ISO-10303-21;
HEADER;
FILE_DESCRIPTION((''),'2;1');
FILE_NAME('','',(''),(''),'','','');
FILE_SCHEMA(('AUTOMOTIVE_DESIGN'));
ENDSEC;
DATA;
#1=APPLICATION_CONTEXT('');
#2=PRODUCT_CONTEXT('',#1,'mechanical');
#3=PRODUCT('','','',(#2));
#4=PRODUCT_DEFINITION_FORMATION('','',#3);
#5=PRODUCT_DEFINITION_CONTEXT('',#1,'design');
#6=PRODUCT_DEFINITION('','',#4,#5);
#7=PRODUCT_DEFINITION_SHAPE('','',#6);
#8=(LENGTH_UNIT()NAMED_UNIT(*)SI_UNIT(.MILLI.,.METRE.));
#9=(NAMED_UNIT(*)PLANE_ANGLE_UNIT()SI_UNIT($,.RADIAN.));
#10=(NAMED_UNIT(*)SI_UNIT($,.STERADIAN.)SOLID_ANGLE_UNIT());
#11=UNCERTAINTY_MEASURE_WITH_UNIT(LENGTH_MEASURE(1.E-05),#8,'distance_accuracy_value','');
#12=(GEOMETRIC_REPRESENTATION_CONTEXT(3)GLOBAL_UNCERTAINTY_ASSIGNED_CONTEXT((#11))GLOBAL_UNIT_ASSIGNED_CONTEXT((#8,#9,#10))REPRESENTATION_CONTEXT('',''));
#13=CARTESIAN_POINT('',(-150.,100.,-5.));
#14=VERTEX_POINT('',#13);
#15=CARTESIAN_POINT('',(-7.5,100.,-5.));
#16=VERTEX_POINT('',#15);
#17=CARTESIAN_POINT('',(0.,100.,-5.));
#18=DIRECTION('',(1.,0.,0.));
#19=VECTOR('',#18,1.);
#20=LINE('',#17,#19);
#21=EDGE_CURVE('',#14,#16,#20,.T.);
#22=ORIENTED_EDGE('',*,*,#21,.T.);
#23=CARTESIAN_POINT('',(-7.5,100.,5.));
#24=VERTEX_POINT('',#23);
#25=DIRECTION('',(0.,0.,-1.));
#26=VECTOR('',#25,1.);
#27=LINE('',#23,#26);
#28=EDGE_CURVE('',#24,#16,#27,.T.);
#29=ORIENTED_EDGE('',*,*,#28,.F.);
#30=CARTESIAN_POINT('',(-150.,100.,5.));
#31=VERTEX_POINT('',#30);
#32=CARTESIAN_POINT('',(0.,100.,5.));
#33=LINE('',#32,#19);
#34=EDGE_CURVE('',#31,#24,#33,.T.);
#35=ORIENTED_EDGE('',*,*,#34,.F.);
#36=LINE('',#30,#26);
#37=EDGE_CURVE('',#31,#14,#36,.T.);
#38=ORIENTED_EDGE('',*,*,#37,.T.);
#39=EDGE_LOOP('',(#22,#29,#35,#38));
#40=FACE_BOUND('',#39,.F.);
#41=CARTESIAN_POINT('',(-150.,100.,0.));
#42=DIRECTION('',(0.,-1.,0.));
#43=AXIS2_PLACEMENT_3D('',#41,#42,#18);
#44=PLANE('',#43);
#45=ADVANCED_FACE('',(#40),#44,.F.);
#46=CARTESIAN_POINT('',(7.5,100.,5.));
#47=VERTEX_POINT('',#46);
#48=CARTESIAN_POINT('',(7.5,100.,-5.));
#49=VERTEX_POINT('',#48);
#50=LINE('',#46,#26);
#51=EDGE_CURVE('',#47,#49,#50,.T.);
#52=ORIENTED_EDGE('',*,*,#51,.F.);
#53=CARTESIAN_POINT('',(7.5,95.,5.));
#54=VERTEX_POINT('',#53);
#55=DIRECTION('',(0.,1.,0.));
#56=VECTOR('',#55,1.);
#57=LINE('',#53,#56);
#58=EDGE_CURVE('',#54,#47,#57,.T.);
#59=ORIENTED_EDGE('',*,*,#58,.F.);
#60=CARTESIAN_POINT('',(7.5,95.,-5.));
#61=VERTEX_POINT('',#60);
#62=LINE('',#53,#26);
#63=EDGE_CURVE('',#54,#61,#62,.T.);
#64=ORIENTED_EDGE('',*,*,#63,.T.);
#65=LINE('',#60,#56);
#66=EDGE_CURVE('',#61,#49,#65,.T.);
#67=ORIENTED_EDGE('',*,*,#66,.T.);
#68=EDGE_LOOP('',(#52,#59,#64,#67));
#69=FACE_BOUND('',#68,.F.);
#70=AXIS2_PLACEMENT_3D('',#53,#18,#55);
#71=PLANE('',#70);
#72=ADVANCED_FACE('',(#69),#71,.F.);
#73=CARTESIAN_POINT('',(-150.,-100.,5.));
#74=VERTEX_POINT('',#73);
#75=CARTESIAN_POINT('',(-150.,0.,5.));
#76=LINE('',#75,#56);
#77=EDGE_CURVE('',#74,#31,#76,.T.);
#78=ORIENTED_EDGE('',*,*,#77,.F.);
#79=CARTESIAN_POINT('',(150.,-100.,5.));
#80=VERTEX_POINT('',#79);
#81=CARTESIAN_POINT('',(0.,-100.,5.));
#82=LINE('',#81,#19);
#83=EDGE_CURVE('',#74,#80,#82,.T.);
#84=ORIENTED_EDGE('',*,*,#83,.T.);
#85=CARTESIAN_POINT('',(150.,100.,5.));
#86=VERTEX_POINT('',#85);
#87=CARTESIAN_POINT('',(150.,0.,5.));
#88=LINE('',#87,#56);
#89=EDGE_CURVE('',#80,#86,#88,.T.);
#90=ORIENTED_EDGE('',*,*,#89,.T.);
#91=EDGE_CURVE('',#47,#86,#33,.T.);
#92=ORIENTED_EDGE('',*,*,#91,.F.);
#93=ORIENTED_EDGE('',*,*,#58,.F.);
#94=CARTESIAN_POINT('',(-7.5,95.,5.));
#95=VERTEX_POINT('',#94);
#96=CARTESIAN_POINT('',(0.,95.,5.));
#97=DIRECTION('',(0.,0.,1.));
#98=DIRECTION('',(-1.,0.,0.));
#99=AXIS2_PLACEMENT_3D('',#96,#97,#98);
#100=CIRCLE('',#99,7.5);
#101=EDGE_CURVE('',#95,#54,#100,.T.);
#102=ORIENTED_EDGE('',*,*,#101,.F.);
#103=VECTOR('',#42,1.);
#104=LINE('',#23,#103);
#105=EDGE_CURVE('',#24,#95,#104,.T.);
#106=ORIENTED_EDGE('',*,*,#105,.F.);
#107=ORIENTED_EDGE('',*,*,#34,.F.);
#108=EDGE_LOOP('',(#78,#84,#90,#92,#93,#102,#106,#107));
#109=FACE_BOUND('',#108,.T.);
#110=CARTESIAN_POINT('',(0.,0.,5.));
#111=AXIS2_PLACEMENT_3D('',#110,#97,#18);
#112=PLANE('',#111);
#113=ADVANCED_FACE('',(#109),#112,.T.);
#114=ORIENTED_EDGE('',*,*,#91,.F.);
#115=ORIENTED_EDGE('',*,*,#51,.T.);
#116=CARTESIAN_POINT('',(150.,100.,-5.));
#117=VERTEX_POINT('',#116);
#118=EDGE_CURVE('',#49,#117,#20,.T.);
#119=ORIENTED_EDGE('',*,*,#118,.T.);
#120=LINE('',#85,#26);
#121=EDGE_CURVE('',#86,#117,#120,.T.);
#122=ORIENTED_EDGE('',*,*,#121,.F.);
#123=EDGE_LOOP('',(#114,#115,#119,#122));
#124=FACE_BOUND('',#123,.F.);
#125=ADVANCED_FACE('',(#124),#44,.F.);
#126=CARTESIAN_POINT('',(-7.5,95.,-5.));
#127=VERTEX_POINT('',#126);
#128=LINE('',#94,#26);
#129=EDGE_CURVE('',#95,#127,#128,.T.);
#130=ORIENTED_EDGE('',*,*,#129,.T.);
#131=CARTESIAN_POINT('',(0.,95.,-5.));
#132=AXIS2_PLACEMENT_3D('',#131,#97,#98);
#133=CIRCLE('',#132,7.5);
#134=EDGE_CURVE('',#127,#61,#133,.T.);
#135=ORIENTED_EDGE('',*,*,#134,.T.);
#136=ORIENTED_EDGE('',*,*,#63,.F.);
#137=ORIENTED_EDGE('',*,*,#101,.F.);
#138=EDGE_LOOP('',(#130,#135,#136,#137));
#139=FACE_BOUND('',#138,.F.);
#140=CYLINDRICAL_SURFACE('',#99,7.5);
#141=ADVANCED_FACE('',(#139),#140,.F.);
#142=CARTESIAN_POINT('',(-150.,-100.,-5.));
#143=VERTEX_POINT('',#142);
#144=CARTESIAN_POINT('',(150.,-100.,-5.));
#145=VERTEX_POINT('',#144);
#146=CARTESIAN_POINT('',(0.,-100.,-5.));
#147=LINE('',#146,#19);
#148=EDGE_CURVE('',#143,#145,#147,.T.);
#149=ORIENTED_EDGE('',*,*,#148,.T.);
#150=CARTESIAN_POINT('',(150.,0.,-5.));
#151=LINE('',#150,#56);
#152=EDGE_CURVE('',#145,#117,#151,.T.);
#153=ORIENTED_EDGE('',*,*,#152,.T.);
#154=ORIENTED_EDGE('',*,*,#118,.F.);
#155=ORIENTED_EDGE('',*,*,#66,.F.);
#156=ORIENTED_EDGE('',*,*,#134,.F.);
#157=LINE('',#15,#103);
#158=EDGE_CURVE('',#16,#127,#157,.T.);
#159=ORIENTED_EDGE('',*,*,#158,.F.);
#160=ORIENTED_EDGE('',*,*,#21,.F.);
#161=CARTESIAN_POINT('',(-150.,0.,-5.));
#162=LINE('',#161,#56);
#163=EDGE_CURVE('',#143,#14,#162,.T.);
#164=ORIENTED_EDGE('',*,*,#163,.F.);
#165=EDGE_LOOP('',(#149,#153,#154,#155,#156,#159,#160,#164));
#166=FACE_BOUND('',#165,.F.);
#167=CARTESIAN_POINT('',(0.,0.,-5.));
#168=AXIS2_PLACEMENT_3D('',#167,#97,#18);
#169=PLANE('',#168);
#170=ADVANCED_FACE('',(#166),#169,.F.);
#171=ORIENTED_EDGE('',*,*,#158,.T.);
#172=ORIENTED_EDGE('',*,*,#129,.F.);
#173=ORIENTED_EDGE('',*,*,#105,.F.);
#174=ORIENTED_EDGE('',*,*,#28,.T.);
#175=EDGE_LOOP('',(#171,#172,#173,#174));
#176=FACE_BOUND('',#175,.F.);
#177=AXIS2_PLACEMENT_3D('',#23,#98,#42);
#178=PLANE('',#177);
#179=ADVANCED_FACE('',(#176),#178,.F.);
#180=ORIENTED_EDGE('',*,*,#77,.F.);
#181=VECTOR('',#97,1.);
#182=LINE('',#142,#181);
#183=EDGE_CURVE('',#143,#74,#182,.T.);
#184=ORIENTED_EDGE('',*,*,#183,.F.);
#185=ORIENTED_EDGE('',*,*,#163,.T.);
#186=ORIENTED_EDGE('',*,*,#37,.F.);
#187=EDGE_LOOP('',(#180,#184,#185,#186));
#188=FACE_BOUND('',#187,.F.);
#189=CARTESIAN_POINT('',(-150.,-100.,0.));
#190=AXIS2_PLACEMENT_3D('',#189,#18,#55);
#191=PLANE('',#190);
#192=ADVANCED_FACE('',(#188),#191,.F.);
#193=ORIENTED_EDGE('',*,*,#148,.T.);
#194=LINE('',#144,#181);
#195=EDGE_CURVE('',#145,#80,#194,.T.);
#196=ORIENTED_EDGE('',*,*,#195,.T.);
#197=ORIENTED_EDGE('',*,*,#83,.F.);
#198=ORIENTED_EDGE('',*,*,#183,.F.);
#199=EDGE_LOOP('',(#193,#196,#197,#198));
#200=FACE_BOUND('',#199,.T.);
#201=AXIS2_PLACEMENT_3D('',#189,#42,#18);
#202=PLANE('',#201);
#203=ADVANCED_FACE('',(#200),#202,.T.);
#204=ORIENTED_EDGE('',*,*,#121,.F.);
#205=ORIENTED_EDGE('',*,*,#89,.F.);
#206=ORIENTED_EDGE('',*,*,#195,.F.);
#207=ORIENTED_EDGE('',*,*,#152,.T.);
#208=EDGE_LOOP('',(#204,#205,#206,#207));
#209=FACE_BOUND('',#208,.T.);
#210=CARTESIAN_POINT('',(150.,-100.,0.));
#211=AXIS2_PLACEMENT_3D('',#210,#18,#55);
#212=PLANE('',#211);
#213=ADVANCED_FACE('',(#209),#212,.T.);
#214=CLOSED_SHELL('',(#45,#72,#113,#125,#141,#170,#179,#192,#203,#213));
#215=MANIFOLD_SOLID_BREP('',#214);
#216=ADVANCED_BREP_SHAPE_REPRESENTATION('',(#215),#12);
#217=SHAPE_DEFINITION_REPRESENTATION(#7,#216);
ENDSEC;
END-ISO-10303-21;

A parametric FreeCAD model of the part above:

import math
import FreeCAD as App
import Part
import Sketcher
Q = App.Units.Quantity


def add_polygon(sketch, points):
    """Adds a closed chain of lines whose ends are joined by coincident constraints."""
    first, n = sketch.GeometryCount, len(points)
    for a, b in zip(points, points[1:] + points[:1]):
        sketch.addGeometry(Part.LineSegment(App.Vector(*a, 0), App.Vector(*b, 0)), False)
    for i in range(n):
        sketch.addConstraint(Sketcher.Constraint("Coincident", first + i, 2, first + (i + 1) % n, 1))

doc = App.newDocument("Part")
body = doc.addObject("PartDesign::Body", "Body")

# Sketch on XY plane
sketch1 = body.newObject("Sketcher::SketchObject", "Sketch")
sketch1.AttachmentSupport = (doc.getObject("XY_Plane"), [""])
sketch1.MapMode = "FlatFace"
add_polygon(sketch1, [(-150, 100), (-150, -100), (150, -100), (150, 100)])  # lines 0-3
sketch1.addConstraint([
    Sketcher.Constraint("Vertical", 0),
    Sketcher.Constraint("Horizontal", 1),
    Sketcher.Constraint("Vertical", 2),
    Sketcher.Constraint("Horizontal", 3),
    Sketcher.Constraint("Symmetric", 0, 2, 2, 2, -1, 1),
    Sketcher.Constraint("DistanceX", 1, 1, 1, 2, Q("300 mm")),
    Sketcher.Constraint("DistanceY", 0, 2, 0, 1, Q("200 mm")),
])
pad1 = body.newObject("PartDesign::Pad", "Pad")
pad1.Profile = sketch1
pad1.Length = 10
pad1.Midplane = True

# Sketch on XY plane
sketch2 = body.newObject("Sketcher::SketchObject", "Sketch001")
sketch2.AttachmentSupport = (doc.getObject("XY_Plane"), [""])
sketch2.MapMode = "FlatFace"
sketch2.AttachmentOffset = App.Placement(App.Vector(0, 0, 5), App.Rotation())
sketch2.addGeometry([
    Part.LineSegment(App.Vector(-8, 100, 0), App.Vector(-8, 95, 0)),
    Part.ArcOfCircle(Part.Circle(App.Vector(0, 95, 0), App.Vector(0, 0, 1), 8), math.radians(180), math.radians(360)),
    Part.LineSegment(App.Vector(8, 95, 0), App.Vector(8, 100, 0)),
    Part.LineSegment(App.Vector(8, 100, 0), App.Vector(-8, 100, 0)),
], False)
sketch2.addConstraint([
    Sketcher.Constraint("Tangent", 0, 2, 1, 1),
    Sketcher.Constraint("Tangent", 1, 2, 2, 1),
    Sketcher.Constraint("Coincident", 2, 2, 3, 1),
    Sketcher.Constraint("Coincident", 3, 2, 0, 1),
    Sketcher.Constraint("Vertical", 0),
    Sketcher.Constraint("Vertical", 2),
    Sketcher.Constraint("Horizontal", 3),
    Sketcher.Constraint("PointOnObject", 1, 3, -2),
    Sketcher.Constraint("Radius", 1, Q("7.5 mm")),
    Sketcher.Constraint("DistanceY", 0, 2, 0, 1, Q("5 mm")),
    Sketcher.Constraint("DistanceY", -1, 1, 1, 3, Q("95 mm")),
])
pocket1 = body.newObject("PartDesign::Pocket", "Pocket")
pocket1.Profile = sketch2
pocket1.Length = 10

doc.recompute()
